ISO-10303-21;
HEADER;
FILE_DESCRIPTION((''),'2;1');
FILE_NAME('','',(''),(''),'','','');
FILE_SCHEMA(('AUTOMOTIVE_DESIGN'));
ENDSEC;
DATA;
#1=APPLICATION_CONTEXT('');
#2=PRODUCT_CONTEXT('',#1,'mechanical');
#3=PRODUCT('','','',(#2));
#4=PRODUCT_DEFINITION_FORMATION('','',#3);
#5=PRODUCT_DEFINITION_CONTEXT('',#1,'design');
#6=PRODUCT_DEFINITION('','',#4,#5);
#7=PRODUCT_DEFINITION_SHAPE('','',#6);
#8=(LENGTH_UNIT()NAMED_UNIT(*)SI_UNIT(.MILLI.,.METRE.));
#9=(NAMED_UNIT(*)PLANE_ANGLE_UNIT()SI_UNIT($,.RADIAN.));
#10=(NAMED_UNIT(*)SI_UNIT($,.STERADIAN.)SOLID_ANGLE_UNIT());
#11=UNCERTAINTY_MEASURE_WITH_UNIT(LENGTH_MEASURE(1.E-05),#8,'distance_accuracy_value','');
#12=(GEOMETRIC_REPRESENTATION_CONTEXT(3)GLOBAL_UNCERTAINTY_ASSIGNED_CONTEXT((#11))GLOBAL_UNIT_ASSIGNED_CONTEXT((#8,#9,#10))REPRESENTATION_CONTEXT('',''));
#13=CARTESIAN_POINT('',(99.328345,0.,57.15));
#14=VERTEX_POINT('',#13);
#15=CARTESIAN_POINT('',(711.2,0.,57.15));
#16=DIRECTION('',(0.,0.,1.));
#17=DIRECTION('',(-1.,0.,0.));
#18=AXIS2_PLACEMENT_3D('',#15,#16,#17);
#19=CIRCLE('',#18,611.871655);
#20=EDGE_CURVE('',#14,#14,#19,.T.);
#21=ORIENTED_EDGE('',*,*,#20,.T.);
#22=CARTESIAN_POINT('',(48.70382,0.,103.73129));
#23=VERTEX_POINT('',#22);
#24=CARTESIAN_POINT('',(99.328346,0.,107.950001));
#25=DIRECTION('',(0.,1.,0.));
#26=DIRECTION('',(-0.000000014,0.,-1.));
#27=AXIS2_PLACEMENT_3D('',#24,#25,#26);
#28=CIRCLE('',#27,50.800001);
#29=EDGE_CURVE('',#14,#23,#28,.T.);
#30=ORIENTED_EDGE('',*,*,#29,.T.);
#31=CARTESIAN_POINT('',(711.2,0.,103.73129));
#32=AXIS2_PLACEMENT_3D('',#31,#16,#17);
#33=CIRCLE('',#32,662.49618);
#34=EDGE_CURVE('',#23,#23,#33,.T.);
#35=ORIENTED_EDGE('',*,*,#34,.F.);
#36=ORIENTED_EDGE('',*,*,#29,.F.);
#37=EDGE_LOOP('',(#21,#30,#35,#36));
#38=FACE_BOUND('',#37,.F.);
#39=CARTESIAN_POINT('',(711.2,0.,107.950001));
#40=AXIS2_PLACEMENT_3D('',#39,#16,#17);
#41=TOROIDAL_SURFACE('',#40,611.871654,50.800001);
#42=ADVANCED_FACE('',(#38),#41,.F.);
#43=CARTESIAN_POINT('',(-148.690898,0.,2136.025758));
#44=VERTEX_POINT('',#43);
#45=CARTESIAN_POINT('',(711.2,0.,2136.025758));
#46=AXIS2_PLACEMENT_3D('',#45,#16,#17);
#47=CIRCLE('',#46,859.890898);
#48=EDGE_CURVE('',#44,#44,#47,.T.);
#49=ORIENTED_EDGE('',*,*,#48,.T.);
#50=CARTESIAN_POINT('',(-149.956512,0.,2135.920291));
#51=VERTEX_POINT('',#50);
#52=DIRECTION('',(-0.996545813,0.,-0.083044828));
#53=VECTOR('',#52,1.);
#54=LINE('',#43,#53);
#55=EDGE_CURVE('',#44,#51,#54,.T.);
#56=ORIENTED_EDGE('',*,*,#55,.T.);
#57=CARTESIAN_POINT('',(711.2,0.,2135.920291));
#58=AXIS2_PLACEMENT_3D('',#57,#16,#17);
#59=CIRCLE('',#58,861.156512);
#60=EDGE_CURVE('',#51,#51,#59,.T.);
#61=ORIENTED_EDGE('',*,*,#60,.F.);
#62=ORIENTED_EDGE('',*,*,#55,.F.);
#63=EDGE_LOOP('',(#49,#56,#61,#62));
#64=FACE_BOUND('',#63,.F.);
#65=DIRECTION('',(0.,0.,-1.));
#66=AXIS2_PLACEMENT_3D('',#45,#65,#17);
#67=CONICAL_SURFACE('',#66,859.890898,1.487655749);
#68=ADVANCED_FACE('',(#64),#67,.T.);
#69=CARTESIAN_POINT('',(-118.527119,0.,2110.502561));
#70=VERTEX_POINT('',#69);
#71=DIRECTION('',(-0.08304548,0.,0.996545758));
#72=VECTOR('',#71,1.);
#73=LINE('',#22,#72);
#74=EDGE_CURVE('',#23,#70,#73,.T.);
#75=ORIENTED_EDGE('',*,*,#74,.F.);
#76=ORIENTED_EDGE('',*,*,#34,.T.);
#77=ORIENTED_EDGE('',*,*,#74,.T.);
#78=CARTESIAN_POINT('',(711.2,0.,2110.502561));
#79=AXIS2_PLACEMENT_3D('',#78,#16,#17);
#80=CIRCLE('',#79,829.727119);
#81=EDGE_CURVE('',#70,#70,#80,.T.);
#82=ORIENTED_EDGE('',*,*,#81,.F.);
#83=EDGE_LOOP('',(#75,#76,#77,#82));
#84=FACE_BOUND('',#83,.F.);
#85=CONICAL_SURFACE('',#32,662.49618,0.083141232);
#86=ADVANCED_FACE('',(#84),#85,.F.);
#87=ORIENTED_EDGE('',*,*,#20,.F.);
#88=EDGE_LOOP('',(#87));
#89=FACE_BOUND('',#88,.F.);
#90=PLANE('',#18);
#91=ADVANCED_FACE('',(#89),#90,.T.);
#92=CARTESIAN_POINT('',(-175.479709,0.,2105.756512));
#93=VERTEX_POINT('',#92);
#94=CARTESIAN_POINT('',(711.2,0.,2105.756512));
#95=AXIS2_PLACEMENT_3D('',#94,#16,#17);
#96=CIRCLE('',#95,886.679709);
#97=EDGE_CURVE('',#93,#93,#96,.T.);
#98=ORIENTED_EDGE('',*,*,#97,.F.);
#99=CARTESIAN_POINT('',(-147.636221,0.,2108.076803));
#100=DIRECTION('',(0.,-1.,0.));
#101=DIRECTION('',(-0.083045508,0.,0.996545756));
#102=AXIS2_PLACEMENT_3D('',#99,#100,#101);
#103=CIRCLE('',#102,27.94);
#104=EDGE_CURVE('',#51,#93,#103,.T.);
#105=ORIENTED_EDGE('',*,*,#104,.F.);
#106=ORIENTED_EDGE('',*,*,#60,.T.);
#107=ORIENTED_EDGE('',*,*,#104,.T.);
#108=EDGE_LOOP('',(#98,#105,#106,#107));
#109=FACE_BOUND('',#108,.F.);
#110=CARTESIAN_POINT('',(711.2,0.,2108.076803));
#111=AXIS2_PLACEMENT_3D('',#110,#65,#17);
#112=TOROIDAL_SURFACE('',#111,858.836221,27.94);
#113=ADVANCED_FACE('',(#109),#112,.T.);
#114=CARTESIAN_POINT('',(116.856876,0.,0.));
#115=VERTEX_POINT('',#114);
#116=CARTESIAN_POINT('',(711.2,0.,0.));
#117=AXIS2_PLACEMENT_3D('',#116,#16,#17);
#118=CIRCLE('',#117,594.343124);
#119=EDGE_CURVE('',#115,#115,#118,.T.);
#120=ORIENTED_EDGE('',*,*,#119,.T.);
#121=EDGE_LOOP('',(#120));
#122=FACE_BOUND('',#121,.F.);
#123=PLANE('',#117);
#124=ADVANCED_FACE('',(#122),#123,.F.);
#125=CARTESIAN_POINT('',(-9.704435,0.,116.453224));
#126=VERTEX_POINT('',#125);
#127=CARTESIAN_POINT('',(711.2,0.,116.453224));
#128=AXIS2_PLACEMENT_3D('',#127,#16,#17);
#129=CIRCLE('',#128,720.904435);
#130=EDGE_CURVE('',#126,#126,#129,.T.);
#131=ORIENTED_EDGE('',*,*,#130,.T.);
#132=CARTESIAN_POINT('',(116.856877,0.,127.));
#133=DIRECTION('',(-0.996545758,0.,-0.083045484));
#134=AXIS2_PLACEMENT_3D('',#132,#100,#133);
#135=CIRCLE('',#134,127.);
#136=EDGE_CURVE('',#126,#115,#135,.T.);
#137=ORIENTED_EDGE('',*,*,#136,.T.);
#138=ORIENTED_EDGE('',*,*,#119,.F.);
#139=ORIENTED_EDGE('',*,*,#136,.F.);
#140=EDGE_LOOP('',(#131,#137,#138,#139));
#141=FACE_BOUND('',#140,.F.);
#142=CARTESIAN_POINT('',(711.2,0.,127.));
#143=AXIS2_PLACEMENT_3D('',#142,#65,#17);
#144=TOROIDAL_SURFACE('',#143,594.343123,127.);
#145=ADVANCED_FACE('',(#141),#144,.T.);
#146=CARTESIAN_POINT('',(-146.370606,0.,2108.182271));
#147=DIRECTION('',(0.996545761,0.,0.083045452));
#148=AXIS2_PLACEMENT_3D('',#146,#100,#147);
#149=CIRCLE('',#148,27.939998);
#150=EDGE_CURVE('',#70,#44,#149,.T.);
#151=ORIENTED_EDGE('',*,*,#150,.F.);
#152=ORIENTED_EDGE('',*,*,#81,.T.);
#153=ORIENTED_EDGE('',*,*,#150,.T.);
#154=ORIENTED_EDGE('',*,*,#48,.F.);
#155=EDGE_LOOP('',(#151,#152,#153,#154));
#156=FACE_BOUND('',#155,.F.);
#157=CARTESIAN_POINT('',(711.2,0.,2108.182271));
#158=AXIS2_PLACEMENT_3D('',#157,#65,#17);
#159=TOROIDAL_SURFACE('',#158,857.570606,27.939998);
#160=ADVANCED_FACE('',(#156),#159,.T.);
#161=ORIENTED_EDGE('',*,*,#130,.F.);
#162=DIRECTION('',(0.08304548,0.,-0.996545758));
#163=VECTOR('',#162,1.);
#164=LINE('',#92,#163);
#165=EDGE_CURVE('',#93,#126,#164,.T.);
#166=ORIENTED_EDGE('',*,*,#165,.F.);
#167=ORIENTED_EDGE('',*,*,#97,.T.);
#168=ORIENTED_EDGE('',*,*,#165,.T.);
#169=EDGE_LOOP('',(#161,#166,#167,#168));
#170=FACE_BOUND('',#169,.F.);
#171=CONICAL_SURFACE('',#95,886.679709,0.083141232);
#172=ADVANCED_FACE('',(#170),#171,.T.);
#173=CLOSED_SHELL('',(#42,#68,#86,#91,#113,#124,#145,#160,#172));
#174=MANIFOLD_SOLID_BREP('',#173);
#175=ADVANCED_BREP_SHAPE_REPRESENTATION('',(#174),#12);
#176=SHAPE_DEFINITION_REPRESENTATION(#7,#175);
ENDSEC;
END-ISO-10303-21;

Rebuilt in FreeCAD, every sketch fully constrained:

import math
import FreeCAD as App
import Part
import Sketcher
from FreeCAD import Vector
Q = App.Units.Quantity

doc = App.newDocument("Part")
body = doc.addObject("PartDesign::Body", "Body")

# Sketch on XZ plane
sketch1 = doc.addObject("Sketcher::SketchObject", "Sketch")
body.addObject(sketch1)
sketch1.AttachmentSupport = (doc.XZ_Plane, [""])
sketch1.MapMode = "FlatFace"
sketch1.addGeometry([
    Part.ArcOfCircle(Part.Circle(Vector(116.9, 127, 0), Vector(0, 0, 1), 127), math.radians(-175), math.radians(-90)),  # 0
    Part.LineSegment(Vector(116.9, 0, 0), Vector(711.2, 0, 0)),  # 1
    Part.LineSegment(Vector(711.2, 0, 0), Vector(711.2, 57.1, 0)),  # 2
    Part.LineSegment(Vector(711.2, 57.1, 0), Vector(99.3, 57.1, 0)),  # 3
    Part.ArcOfCircle(Part.Circle(Vector(99.3, 108, 0), Vector(0, 0, 1), 50.8), math.radians(-175), math.radians(-90)),  # 4
    Part.LineSegment(Vector(48.7, 103.7, 0), Vector(-118.5, 2110.5, 0)),  # 5
    Part.ArcOfCircle(Part.Circle(Vector(-146.4, 2108.2, 0), Vector(0, 0, 1), 27.9), math.radians(5), math.radians(95)),  # 6
    Part.LineSegment(Vector(-148.7, 2136, 0), Vector(-150, 2135.9, 0)),  # 7
    Part.ArcOfCircle(Part.Circle(Vector(-147.6, 2108.1, 0), Vector(0, 0, 1), 27.9), math.radians(95), math.radians(185)),  # 8
    Part.LineSegment(Vector(-175.5, 2105.8, 0), Vector(-9.7, 116.5, 0)),  # 9
], False)
sketch1.addGeometry(Part.LineSegment(Vector(711.2, 0, 0), Vector(711.2, 2136, 0)), True)  # axis
sketch1.addConstraint([
    Sketcher.Constraint("Tangent", 0, 2, 1, 1),
    Sketcher.Constraint("Coincident", 1, 2, 2, 1),
    Sketcher.Constraint("Coincident", 2, 2, 3, 1),
    Sketcher.Constraint("Tangent", 3, 2, 4, 2),
    Sketcher.Constraint("Tangent", 4, 1, 5, 1),
    Sketcher.Constraint("Tangent", 5, 2, 6, 1),
    Sketcher.Constraint("Tangent", 6, 2, 7, 1),
    Sketcher.Constraint("Tangent", 7, 2, 8, 1),
    Sketcher.Constraint("Tangent", 8, 2, 9, 1),
    Sketcher.Constraint("Tangent", 9, 2, 0, 1),
    Sketcher.Constraint("Horizontal", 1),
    Sketcher.Constraint("Vertical", 2),
    Sketcher.Constraint("Horizontal", 3),
    Sketcher.Constraint("Vertical", 10),
    Sketcher.Constraint("Coincident", 10, 1, 1, 2),
    Sketcher.Constraint("Equal", 6, 8),
    Sketcher.Constraint("PointOnObject", 0, 2, -1),
    Sketcher.Constraint("Perpendicular", 5, 7),
    Sketcher.Constraint("Parallel", 5, 9),
    Sketcher.Constraint("Horizontal", 6, 2, 10, 2),
    Sketcher.Constraint("Radius", 0, Q("5 in")),
    Sketcher.Constraint("Radius", 4, Q("2 in")),
    Sketcher.Constraint("Radius", 6, Q("1.0999999 in")),
    Sketcher.Constraint("DistanceX", -1, 1, 1, 2, Q("28 in")),
    Sketcher.Constraint("DistanceY", 2, 1, 2, 2, Q("2.25 in")),
    Sketcher.Constraint("Distance", 7, Q("0.05 in")),
    Sketcher.Constraint("DistanceY", 10, 1, 10, 2, 2136.025758),
    Sketcher.Constraint("Distance", 5, 2013.727171),
    Sketcher.Constraint("DistanceX", 1, 1, 1, 2, 594.343124),
])
revolution = doc.addObject("PartDesign::Revolution", "Revolution")
body.addObject(revolution)
revolution.Profile = sketch1
revolution.ReferenceAxis = (sketch1, ["Axis0"])
revolution.Angle = 360

doc.recompute()
